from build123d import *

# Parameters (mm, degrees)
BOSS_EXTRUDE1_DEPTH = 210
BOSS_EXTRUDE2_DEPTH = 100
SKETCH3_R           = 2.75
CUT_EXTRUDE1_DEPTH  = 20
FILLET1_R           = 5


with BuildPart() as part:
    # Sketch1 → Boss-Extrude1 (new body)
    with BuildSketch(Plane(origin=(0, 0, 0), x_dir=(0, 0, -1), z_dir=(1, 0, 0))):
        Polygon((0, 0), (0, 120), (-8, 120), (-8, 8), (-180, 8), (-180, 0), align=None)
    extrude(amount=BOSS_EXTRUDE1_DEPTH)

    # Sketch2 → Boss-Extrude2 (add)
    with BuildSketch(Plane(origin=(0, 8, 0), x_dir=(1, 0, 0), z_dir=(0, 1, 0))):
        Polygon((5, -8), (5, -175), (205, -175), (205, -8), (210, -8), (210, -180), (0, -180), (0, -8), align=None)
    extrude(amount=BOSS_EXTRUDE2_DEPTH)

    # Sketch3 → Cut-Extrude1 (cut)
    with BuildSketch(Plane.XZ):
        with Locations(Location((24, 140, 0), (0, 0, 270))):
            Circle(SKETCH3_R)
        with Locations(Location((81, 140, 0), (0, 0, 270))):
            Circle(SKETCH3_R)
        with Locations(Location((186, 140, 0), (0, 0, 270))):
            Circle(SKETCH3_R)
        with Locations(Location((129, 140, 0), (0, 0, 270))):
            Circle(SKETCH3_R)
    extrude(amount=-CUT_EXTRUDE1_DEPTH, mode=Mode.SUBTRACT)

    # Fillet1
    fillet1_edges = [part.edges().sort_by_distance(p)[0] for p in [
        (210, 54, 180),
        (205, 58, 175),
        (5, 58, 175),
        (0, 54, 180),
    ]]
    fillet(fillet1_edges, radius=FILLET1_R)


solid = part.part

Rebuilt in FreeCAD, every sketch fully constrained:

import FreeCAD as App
import Part
import Sketcher
from FreeCAD import Vector


def edges_at(feature, points):
    """Names of the edges that pass closest to the given points."""
    edges = feature.Shape.Edges
    near = lambda p: min(range(len(edges)), key=lambda i: edges[i].distToShape(Part.Vertex(*p))[0])
    return sorted({f"Edge{near(p) + 1}" for p in points})

doc = App.newDocument("Part")
params = doc.addObject("Spreadsheet::Sheet", "Params")
for row, (alias, value) in enumerate([
    ("sketch1_width", "120 mm"),
    ("sketch1_width2", "112 mm"),
    ("sketch1_height", "172 mm"),
    ("pad1_length", "210 mm"),
    ("sketch2_width", "5 mm"),
    ("sketch2_width2", "210 mm"),
    ("sketch2_height", "167 mm"),
    ("sketch2_height2", "172 mm"),
    ("pad2_length", "100 mm"),
    ("sketch3_diameter", "5.5 mm"),
    ("pocket1_length", "20 mm"),
    ("fillet_radius", "5 mm"),
], start=1):
    params.set(f"A{row}", alias)
    params.set(f"B{row}", "=" + value)
    params.setAlias(f"B{row}", alias)

body = doc.addObject("PartDesign::Body", "Body")

# Sketch on YZ plane
sketch1 = body.newObject("Sketcher::SketchObject", "Sketch")
sketch1.AttachmentSupport = (doc.getObject("YZ_Plane"), [""])
sketch1.MapMode = "FlatFace"
sketch1.addGeometry(Part.LineSegment(Vector(0, 0, 0), Vector(120, 0, 0)), False)
sketch1.addGeometry(Part.LineSegment(Vector(120, 0, 0), Vector(120, 8, 0)), False)
sketch1.addGeometry(Part.LineSegment(Vector(120, 8, 0), Vector(8, 8, 0)), False)
sketch1.addGeometry(Part.LineSegment(Vector(8, 8, 0), Vector(8, 180, 0)), False)
sketch1.addGeometry(Part.LineSegment(Vector(8, 180, 0), Vector(0, 180, 0)), False)
sketch1.addGeometry(Part.LineSegment(Vector(0, 180, 0), Vector(0, 0, 0)), False)
sketch1.addConstraint(Sketcher.Constraint("Coincident", 0, 2, 1, 1))
sketch1.addConstraint(Sketcher.Constraint("Coincident", 1, 2, 2, 1))
sketch1.addConstraint(Sketcher.Constraint("Coincident", 2, 2, 3, 1))
sketch1.addConstraint(Sketcher.Constraint("Coincident", 3, 2, 4, 1))
sketch1.addConstraint(Sketcher.Constraint("Coincident", 4, 2, 5, 1))
sketch1.addConstraint(Sketcher.Constraint("Coincident", 5, 2, 0, 1))
sketch1.addConstraint(Sketcher.Constraint("Horizontal", 0))
sketch1.addConstraint(Sketcher.Constraint("Vertical", 1))
sketch1.addConstraint(Sketcher.Constraint("Horizontal", 2))
sketch1.addConstraint(Sketcher.Constraint("Vertical", 3))
sketch1.addConstraint(Sketcher.Constraint("Horizontal", 4))
sketch1.addConstraint(Sketcher.Constraint("Vertical", 5))
sketch1.addConstraint(Sketcher.Constraint("Coincident", 5, 2, -1, 1))
sketch1.addConstraint(Sketcher.Constraint("Equal", 4, 1))
sketch1.addConstraint(Sketcher.Constraint("DistanceX", 0, 1, 0, 2, 120.0))
sketch1.addConstraint(Sketcher.Constraint("DistanceX", 2, 2, 2, 1, 112.0))
sketch1.addConstraint(Sketcher.Constraint("DistanceY", 3, 1, 3, 2, 172.0))
sketch1.setExpression("Constraints[14]", "Params.sketch1_width")
sketch1.setExpression("Constraints[15]", "Params.sketch1_width2")
sketch1.setExpression("Constraints[16]", "Params.sketch1_height")
pad1 = body.newObject("PartDesign::Pad", "Pad")
pad1.Profile = sketch1
pad1.setExpression("Length", "Params.pad1_length")

# Sketch on XZ plane
sketch2 = body.newObject("Sketcher::SketchObject", "Sketch001")
sketch2.AttachmentSupport = (doc.getObject("XZ_Plane"), [""])
sketch2.MapMode = "FlatFace"
sketch2.AttachmentOffset = App.Placement(Vector(0, 0, -8), App.Rotation())
sketch2.addGeometry(Part.LineSegment(Vector(5, 175, 0), Vector(5, 8, 0)), False)
sketch2.addGeometry(Part.LineSegment(Vector(5, 8, 0), Vector(0, 8, 0)), False)
sketch2.addGeometry(Part.LineSegment(Vector(0, 8, 0), Vector(0, 180, 0)), False)
sketch2.addGeometry(Part.LineSegment(Vector(0, 180, 0), Vector(210, 180, 0)), False)
sketch2.addGeometry(Part.LineSegment(Vector(210, 180, 0), Vector(210, 8, 0)), False)
sketch2.addGeometry(Part.LineSegment(Vector(210, 8, 0), Vector(205, 8, 0)), False)
sketch2.addGeometry(Part.LineSegment(Vector(205, 8, 0), Vector(205, 175, 0)), False)
sketch2.addGeometry(Part.LineSegment(Vector(205, 175, 0), Vector(5, 175, 0)), False)
sketch2.addConstraint(Sketcher.Constraint("Coincident", 0, 2, 1, 1))
sketch2.addConstraint(Sketcher.Constraint("Coincident", 1, 2, 2, 1))
sketch2.addConstraint(Sketcher.Constraint("Coincident", 2, 2, 3, 1))
sketch2.addConstraint(Sketcher.Constraint("Coincident", 3, 2, 4, 1))
sketch2.addConstraint(Sketcher.Constraint("Coincident", 4, 2, 5, 1))
sketch2.addConstraint(Sketcher.Constraint("Coincident", 5, 2, 6, 1))
sketch2.addConstraint(Sketcher.Constraint("Coincident", 6, 2, 7, 1))
sketch2.addConstraint(Sketcher.Constraint("Coincident", 7, 2, 0, 1))
sketch2.addConstraint(Sketcher.Constraint("Vertical", 0))
sketch2.addConstraint(Sketcher.Constraint("Horizontal", 1))
sketch2.addConstraint(Sketcher.Constraint("Vertical", 2))
sketch2.addConstraint(Sketcher.Constraint("Horizontal", 3))
sketch2.addConstraint(Sketcher.Constraint("Vertical", 4))
sketch2.addConstraint(Sketcher.Constraint("Horizontal", 5))
sketch2.addConstraint(Sketcher.Constraint("Vertical", 6))
sketch2.addConstraint(Sketcher.Constraint("Horizontal", 7))
sketch2.addConstraint(Sketcher.Constraint("PointOnObject", 1, 2, -2))
sketch2.addConstraint(Sketcher.Constraint("Horizontal", 1, 2, 4, 2))
sketch2.addConstraint(Sketcher.Constraint("Equal", 1, 5))
sketch2.addConstraint(Sketcher.Constraint("DistanceX", 1, 2, 1, 1, 5.0))
sketch2.addConstraint(Sketcher.Constraint("DistanceX", 3, 1, 3, 2, 210.0))
sketch2.addConstraint(Sketcher.Constraint("DistanceY", 0, 2, 0, 1, 167.0))
sketch2.addConstraint(Sketcher.Constraint("DistanceY", 2, 1, 2, 2, 172.0))
sketch2.addConstraint(Sketcher.Constraint("DistanceY", -1, 1, 0, 2, 8.0))
sketch2.setExpression("Constraints[19]", "Params.sketch2_width")
sketch2.setExpression("Constraints[20]", "Params.sketch2_width2")
sketch2.setExpression("Constraints[21]", "Params.sketch2_height")
sketch2.setExpression("Constraints[22]", "Params.sketch2_height2")
pad2 = body.newObject("PartDesign::Pad", "Pad001")
pad2.Profile = sketch2
pad2.setExpression("Length", "Params.pad2_length")
pad2.Reversed = True

# Sketch on XZ plane
sketch3 = body.newObject("Sketcher::SketchObject", "Sketch002")
sketch3.AttachmentSupport = (doc.getObject("XZ_Plane"), [""])
sketch3.MapMode = "FlatFace"
sketch3.addGeometry(Part.Circle(Vector(24, 140, 0), Vector(0, 0, 1), 2.8), False)
sketch3.addGeometry(Part.Circle(Vector(81, 140, 0), Vector(0, 0, 1), 2.8), False)
sketch3.addGeometry(Part.Circle(Vector(186, 140, 0), Vector(0, 0, 1), 2.8), False)
sketch3.addGeometry(Part.Circle(Vector(129, 140, 0), Vector(0, 0, 1), 2.8), False)
sketch3.addConstraint(Sketcher.Constraint("Equal", 0, 1))
sketch3.addConstraint(Sketcher.Constraint("Equal", 1, 2))
sketch3.addConstraint(Sketcher.Constraint("Equal", 2, 3))
sketch3.addConstraint(Sketcher.Constraint("Horizontal", 0, 3, 1, 3))
sketch3.addConstraint(Sketcher.Constraint("Horizontal", 1, 3, 2, 3))
sketch3.addConstraint(Sketcher.Constraint("Horizontal", 2, 3, 3, 3))
sketch3.addConstraint(Sketcher.Constraint("Diameter", 0, 5.5))
sketch3.addConstraint(Sketcher.Constraint("DistanceX", -1, 1, 0, 3, 24.0))
sketch3.addConstraint(Sketcher.Constraint("DistanceY", -1, 1, 0, 3, 140.0))
sketch3.addConstraint(Sketcher.Constraint("DistanceX", -1, 1, 1, 3, 81.0))
sketch3.addConstraint(Sketcher.Constraint("DistanceX", -1, 1, 2, 3, 186.0))
sketch3.addConstraint(Sketcher.Constraint("DistanceX", -1, 1, 3, 3, 129.0))
sketch3.setExpression("Constraints[6]", "Params.sketch3_diameter")
pocket1 = body.newObject("PartDesign::Pocket", "Pocket")
pocket1.Profile = sketch3
pocket1.setExpression("Length", "Params.pocket1_length")
doc.recompute()

fillet = body.newObject("PartDesign::Fillet", "Fillet")
fillet.Base = (pocket1, edges_at(pocket1, [
    (210, 54, 180),
    (205, 58, 175),
    (5, 58, 175),
    (0, 54, 180),
]))
fillet.setExpression("Radius", "Params.fillet_radius")

doc.recompute()
